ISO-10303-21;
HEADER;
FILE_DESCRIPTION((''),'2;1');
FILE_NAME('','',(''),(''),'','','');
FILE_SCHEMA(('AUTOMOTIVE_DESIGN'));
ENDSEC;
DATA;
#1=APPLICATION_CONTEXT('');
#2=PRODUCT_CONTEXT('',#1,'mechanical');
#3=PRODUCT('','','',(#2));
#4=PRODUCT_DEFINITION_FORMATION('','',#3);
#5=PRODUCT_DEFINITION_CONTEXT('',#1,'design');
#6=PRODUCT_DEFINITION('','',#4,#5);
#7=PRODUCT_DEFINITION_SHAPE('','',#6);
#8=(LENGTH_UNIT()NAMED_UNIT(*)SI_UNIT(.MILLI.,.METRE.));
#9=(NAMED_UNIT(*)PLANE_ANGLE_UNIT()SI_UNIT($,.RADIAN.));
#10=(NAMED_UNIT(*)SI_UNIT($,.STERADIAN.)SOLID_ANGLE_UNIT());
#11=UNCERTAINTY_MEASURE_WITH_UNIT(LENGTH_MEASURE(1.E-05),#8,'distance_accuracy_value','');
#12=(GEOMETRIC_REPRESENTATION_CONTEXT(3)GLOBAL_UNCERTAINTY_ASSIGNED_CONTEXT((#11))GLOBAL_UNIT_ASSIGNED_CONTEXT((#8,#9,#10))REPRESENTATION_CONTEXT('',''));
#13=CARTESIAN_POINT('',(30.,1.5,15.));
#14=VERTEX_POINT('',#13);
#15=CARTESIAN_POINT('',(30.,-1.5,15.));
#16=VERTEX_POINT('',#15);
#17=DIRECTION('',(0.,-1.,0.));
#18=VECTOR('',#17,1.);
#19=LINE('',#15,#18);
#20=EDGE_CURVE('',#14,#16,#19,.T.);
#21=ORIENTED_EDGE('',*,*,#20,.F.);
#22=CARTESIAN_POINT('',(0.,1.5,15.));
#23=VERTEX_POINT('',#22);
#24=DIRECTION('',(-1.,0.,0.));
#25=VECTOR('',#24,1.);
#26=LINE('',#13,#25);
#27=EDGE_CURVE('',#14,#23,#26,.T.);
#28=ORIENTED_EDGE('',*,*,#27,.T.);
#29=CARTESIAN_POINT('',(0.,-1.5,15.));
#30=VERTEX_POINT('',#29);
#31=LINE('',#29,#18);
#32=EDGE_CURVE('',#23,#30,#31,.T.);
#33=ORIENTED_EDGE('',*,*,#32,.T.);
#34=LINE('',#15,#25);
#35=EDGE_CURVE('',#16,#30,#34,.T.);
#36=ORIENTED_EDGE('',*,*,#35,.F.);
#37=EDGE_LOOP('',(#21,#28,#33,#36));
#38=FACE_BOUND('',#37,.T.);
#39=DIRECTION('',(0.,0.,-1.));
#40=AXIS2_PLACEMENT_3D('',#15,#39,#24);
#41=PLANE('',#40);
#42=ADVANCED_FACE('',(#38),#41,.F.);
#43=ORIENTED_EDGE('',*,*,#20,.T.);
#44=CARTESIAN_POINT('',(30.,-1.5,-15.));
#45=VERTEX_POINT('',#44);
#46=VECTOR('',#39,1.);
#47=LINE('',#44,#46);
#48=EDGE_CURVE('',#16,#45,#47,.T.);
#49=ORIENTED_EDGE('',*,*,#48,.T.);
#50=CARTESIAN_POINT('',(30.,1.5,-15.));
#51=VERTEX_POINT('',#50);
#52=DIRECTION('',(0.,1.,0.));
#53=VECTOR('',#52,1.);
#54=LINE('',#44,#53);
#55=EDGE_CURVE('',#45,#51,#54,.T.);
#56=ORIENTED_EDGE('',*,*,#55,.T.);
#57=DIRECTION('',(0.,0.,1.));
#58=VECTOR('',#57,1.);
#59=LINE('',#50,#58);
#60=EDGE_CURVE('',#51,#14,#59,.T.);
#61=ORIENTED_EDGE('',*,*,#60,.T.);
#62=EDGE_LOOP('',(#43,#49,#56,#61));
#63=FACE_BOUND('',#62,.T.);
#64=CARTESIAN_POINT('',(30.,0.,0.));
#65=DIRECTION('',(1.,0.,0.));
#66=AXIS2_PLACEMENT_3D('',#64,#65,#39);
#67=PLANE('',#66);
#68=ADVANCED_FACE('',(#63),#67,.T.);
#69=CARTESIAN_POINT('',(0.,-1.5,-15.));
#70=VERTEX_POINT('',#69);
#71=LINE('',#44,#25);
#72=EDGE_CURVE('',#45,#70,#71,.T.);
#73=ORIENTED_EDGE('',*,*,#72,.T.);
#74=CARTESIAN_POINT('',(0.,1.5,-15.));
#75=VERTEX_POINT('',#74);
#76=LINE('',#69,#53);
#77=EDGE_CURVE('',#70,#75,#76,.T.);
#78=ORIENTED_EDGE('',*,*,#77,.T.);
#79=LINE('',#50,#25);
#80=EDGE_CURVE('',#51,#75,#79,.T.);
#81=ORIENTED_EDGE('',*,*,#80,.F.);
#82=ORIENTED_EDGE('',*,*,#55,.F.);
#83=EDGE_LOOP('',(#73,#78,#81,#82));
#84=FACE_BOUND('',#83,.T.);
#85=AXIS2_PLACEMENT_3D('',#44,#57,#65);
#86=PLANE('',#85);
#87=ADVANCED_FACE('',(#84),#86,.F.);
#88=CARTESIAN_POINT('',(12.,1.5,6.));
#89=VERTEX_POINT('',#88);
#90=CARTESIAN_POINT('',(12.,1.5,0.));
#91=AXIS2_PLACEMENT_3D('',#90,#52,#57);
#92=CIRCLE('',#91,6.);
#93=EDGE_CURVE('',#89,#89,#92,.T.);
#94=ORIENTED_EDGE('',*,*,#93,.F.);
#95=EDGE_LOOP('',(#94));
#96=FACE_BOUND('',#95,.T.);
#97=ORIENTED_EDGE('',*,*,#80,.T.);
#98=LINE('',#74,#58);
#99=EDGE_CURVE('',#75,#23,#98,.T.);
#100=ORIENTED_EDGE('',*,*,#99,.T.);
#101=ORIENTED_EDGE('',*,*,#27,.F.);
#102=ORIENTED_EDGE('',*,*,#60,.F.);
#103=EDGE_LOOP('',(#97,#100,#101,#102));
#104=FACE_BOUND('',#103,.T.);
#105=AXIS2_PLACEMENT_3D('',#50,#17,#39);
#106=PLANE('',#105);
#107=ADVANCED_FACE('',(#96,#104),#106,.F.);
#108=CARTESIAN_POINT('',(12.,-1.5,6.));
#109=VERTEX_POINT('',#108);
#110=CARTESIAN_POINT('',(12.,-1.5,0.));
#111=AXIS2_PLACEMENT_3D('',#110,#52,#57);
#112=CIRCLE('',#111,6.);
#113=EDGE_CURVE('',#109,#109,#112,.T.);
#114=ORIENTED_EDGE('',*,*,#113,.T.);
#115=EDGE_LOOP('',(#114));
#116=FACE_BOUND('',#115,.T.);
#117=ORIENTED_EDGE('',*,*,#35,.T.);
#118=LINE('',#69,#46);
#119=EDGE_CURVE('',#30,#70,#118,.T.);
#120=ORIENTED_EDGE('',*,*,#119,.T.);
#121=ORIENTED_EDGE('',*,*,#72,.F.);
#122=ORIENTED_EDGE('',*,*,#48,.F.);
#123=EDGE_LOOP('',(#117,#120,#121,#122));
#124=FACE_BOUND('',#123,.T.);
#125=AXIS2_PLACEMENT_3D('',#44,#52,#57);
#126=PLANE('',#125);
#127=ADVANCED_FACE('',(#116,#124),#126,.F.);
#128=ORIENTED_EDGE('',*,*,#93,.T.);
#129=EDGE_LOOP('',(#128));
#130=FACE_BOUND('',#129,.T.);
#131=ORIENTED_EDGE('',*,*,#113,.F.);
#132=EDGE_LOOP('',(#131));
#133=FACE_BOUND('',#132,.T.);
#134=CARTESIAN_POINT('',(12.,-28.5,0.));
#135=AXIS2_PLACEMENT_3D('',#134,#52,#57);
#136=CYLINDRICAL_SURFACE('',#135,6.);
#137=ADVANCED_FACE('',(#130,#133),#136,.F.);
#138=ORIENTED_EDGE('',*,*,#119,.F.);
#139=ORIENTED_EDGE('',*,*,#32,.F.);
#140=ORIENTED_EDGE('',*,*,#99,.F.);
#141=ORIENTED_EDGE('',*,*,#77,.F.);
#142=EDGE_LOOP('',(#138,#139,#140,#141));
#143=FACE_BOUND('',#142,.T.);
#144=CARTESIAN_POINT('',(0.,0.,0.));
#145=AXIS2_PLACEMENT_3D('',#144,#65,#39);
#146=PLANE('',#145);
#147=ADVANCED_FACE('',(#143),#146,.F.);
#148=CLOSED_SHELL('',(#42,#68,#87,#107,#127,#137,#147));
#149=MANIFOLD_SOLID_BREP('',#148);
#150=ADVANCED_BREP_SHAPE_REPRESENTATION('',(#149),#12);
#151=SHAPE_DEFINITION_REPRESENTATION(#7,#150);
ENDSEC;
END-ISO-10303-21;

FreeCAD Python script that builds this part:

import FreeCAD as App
import Part
import Sketcher
Q = App.Units.Quantity

doc = App.newDocument("Part")
body = doc.addObject("PartDesign::Body", "Body")

sketch1 = body.newObject("Sketcher::SketchObject", "Sketch")
sketch1.AttachmentSupport = (doc.getObject("YZ_Plane"), [""])
sketch1.MapMode = "FlatFace"
sketch1.addGeometry(Part.LineSegment(App.Vector(1.5, 15, 0), App.Vector(-1.5, 15, 0)), False)
sketch1.addGeometry(Part.LineSegment(App.Vector(-1.5, 15, 0), App.Vector(-1.5, -15, 0)), False)
sketch1.addGeometry(Part.LineSegment(App.Vector(-1.5, -15, 0), App.Vector(1.5, -15, 0)), False)
sketch1.addGeometry(Part.LineSegment(App.Vector(1.5, -15, 0), App.Vector(1.5, 15, 0)), False)
sketch1.addConstraint(Sketcher.Constraint("Coincident", 0, 2, 1, 1))
sketch1.addConstraint(Sketcher.Constraint("Coincident", 1, 2, 2, 1))
sketch1.addConstraint(Sketcher.Constraint("Coincident", 2, 2, 3, 1))
sketch1.addConstraint(Sketcher.Constraint("Coincident", 3, 2, 0, 1))
sketch1.addConstraint(Sketcher.Constraint("Horizontal", 0))
sketch1.addConstraint(Sketcher.Constraint("Vertical", 1))
sketch1.addConstraint(Sketcher.Constraint("Horizontal", 2))
sketch1.addConstraint(Sketcher.Constraint("Vertical", 3))
sketch1.addConstraint(Sketcher.Constraint("Symmetric", 0, 2, 2, 2, -1, 1))
sketch1.addConstraint(Sketcher.Constraint("DistanceX", 0, 2, 0, 1, Q("3 mm")))
sketch1.addConstraint(Sketcher.Constraint("DistanceY", 1, 2, 1, 1, Q("30 mm")))
pad1 = body.newObject("PartDesign::Pad", "Pad")
pad1.Profile = sketch1
pad1.Length = 30

sketch2 = body.newObject("Sketcher::SketchObject", "Sketch001")
sketch2.AttachmentSupport = (doc.getObject("XZ_Plane"), [""])
sketch2.MapMode = "FlatFace"
sketch2.AttachmentOffset = App.Placement(App.Vector(0, 0, -1.5), App.Rotation())
sketch2.addGeometry(Part.Circle(App.Vector(12, 0, 0), App.Vector(0, 0, 1), 6), False)
sketch2.addConstraint(Sketcher.Constraint("PointOnObject", 0, 3, -1))
sketch2.addConstraint(Sketcher.Constraint("Diameter", 0, Q("12 mm")))
sketch2.addConstraint(Sketcher.Constraint("DistanceX", -1, 1, 0, 3, Q("12 mm")))
pocket1 = body.newObject("PartDesign::Pocket", "Pocket")
pocket1.Profile = sketch2
pocket1.Length = 30
pocket1.Reversed = True

doc.recompute()
